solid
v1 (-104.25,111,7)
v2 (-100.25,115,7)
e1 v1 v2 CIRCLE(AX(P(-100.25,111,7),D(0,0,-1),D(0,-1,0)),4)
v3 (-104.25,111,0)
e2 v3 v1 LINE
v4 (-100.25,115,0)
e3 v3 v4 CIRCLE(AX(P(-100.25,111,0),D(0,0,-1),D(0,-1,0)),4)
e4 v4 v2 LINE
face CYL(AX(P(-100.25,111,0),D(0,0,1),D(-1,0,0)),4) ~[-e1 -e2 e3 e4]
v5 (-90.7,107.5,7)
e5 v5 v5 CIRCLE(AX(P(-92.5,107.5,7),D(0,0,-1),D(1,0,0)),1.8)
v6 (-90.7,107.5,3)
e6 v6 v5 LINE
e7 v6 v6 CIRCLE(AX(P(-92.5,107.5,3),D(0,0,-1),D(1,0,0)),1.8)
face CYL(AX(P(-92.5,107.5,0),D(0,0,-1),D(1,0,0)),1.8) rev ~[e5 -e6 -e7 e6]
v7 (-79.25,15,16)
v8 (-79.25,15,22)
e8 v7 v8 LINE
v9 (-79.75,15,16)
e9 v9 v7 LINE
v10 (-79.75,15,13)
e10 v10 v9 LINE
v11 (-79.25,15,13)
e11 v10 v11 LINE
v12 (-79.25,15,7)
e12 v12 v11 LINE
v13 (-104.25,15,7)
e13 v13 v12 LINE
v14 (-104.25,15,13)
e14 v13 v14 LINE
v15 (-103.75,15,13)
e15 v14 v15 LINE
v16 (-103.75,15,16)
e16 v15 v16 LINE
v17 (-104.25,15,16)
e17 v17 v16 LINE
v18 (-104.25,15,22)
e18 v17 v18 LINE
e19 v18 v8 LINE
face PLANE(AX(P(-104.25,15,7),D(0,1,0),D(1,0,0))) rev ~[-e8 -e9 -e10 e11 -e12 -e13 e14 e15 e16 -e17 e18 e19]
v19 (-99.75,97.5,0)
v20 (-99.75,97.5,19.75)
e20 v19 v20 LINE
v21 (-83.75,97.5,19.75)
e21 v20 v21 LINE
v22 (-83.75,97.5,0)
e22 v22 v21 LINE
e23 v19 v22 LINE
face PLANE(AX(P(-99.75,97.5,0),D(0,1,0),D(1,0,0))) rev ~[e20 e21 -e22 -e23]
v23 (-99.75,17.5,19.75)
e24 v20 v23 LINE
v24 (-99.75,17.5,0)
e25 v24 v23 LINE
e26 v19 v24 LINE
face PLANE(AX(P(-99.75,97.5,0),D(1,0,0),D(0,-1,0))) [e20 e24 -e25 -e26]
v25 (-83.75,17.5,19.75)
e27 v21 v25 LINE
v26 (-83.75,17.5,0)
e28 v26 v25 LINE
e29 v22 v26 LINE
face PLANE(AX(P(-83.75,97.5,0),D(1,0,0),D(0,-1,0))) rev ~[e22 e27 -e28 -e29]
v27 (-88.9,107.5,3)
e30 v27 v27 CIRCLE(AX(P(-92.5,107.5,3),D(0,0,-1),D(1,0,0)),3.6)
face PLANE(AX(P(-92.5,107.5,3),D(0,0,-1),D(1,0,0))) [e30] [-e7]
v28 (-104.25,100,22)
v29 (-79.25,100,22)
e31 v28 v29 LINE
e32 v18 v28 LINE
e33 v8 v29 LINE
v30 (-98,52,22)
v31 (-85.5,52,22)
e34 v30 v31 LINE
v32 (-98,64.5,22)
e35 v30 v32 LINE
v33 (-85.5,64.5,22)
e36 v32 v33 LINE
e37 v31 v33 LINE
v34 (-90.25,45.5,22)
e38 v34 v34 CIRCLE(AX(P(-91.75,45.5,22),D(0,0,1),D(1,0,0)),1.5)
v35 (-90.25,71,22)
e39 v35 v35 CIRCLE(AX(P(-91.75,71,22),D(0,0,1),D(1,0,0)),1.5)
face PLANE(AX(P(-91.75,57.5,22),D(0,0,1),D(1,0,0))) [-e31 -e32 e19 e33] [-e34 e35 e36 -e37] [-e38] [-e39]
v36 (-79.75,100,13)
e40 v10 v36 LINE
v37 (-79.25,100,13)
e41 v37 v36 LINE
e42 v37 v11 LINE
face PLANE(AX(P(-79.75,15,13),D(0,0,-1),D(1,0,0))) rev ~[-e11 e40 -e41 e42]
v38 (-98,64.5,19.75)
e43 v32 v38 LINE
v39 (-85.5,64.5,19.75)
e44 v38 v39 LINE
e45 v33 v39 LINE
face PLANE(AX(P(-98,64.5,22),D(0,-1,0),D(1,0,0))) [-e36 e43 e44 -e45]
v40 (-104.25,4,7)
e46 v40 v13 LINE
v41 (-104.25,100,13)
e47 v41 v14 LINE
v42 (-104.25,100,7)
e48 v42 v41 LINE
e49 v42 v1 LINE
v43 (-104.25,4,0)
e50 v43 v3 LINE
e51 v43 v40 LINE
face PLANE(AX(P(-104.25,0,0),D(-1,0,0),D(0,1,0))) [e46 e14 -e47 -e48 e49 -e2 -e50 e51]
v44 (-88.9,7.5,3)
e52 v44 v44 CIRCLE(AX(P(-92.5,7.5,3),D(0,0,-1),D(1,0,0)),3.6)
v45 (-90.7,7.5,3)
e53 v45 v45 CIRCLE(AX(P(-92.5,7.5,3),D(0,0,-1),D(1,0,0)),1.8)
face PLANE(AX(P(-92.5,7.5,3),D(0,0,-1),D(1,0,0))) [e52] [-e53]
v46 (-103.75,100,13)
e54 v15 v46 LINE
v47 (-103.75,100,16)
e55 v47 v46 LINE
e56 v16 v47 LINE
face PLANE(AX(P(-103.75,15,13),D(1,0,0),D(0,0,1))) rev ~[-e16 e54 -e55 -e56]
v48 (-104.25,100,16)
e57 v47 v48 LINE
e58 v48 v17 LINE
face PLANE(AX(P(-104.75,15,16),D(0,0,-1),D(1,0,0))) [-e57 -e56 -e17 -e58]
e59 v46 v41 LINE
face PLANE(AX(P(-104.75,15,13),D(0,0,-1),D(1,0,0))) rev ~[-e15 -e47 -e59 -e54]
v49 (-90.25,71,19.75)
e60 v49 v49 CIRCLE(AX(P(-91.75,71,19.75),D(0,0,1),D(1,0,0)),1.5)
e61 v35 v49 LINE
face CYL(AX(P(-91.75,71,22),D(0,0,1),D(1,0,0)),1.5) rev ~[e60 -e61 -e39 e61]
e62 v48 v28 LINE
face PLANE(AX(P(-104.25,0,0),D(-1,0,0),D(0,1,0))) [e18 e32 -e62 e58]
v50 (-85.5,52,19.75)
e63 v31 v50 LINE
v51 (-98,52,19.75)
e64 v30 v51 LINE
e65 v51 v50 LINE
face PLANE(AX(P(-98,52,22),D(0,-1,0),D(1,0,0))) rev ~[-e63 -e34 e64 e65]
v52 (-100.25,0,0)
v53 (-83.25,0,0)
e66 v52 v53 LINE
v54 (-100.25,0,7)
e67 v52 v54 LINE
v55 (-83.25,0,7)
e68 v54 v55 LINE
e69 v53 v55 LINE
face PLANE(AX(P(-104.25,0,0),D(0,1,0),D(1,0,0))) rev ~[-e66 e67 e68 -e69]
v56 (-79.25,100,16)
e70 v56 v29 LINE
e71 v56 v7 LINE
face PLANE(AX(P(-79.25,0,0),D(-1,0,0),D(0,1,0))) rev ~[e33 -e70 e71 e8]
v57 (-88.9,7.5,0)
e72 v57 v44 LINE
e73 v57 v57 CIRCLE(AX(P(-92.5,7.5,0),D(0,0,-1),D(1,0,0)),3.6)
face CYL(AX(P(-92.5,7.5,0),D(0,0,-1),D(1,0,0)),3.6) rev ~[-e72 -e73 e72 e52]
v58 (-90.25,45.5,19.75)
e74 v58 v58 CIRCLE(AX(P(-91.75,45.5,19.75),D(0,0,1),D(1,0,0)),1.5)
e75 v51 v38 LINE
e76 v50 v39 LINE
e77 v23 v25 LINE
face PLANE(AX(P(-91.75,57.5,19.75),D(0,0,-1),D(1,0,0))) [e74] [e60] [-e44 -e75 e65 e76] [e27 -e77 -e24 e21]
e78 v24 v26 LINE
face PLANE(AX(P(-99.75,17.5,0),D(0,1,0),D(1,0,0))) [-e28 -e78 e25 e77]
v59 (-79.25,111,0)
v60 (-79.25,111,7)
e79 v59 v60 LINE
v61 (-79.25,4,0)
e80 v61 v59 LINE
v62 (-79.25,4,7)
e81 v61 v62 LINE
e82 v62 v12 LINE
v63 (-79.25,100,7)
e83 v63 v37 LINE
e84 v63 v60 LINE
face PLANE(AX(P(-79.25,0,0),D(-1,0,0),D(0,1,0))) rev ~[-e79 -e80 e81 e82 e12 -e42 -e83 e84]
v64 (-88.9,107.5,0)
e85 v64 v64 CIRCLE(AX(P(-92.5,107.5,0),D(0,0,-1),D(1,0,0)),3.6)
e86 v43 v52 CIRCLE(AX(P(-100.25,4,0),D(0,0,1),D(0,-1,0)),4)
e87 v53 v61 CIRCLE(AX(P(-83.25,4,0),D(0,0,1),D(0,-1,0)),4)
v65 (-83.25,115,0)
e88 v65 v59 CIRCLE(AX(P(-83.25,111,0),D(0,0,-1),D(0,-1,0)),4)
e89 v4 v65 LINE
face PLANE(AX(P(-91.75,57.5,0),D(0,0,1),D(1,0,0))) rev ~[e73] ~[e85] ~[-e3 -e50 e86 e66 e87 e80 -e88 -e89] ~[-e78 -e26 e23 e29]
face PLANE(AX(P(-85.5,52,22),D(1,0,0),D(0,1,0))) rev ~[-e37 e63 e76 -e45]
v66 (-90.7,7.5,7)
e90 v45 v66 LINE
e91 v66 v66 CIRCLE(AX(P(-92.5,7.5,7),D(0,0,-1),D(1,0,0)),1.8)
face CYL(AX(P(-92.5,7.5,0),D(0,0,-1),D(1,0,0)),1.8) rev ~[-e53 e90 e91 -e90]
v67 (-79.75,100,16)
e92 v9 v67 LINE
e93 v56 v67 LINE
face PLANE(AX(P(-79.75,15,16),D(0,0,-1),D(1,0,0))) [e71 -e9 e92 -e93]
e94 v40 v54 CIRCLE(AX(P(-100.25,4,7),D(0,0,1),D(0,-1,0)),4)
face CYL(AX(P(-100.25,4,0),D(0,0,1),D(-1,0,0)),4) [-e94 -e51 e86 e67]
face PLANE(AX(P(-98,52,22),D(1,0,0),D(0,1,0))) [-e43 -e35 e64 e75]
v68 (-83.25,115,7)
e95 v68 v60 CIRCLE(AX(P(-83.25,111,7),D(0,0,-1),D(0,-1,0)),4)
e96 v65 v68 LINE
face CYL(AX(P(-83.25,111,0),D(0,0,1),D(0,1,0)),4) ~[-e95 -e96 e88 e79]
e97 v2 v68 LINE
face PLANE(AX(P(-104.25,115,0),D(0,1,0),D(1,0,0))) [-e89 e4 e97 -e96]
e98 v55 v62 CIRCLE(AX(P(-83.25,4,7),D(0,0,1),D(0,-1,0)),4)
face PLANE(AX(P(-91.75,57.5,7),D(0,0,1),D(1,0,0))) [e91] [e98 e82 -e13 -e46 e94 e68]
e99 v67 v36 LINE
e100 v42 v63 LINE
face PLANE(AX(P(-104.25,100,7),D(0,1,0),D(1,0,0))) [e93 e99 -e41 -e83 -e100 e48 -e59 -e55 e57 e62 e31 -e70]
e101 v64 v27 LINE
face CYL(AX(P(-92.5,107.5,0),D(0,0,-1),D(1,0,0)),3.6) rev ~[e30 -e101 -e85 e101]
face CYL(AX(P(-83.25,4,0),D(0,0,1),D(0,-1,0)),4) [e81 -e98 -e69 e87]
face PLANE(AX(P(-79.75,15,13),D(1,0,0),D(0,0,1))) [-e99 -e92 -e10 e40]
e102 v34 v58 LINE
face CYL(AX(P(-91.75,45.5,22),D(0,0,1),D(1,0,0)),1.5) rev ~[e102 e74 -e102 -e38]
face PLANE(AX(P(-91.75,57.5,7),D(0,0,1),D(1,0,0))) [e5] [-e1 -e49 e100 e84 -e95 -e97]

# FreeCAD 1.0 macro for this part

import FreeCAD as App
import Part
import Sketcher
from FreeCAD import Vector
Q = App.Units.Quantity


def edges_at(feature, points):
    """Names of the edges that pass closest to the given points."""
    edges = feature.Shape.Edges
    near = lambda p: min(range(len(edges)), key=lambda i: edges[i].distToShape(Part.Vertex(*p))[0])
    return sorted({f"Edge{near(p) + 1}" for p in points})

doc = App.newDocument("Part")
params = doc.addObject("Spreadsheet::Sheet", "Params")
for row, (alias, value) in enumerate([
    ("sketch1_width", "25 mm"),
    ("sketch1_height", "115 mm"),
    ("pad1_length", "7 mm"),
    ("sketch2_width", "25 mm"),
    ("sketch2_height", "85 mm"),
    ("pad2_length", "15 mm"),
    ("sketch3_width", "12.5 mm"),
    ("sketch4_diameter", "3 mm"),
    ("sketch5_width", "16 mm"),
    ("sketch5_height", "80 mm"),
    ("pocket3_length", "19.75 mm"),
    ("sketch6_width", "1 mm"),
    ("sketch6_height", "3 mm"),
    ("sketch7_diameter", "3.6 mm"),
    ("sketch8_diameter", "7.2 mm"),
    ("pocket6_length", "3 mm"),
    ("fillet_radius", "4 mm"),
], start=1):
    params.set(f"A{row}", alias)
    params.set(f"B{row}", "=" + value)
    params.setAlias(f"B{row}", alias)

body = doc.addObject("PartDesign::Body", "Body")

sketch1 = body.newObject("Sketcher::SketchObject", "Sketch")
sketch1.AttachmentSupport = (doc.getObject("XY_Plane"), [""])
sketch1.MapMode = "FlatFace"
sketch1.addGeometry([
    Part.LineSegment(Vector(-104, 115, 0), Vector(-104, 0, 0)),
    Part.LineSegment(Vector(-104, 0, 0), Vector(-79, 0, 0)),
    Part.LineSegment(Vector(-79, 0, 0), Vector(-79, 115, 0)),
    Part.LineSegment(Vector(-79, 115, 0), Vector(-104, 115, 0)),
], False)
sketch1.addConstraint([
    Sketcher.Constraint("Coincident", 0, 2, 1, 1),
    Sketcher.Constraint("Coincident", 1, 2, 2, 1),
    Sketcher.Constraint("Coincident", 2, 2, 3, 1),
    Sketcher.Constraint("Coincident", 3, 2, 0, 1),
    Sketcher.Constraint("Vertical", 0),
    Sketcher.Constraint("Horizontal", 1),
    Sketcher.Constraint("Vertical", 2),
    Sketcher.Constraint("Horizontal", 3),
    Sketcher.Constraint("PointOnObject", 0, 2, -1),
    Sketcher.Constraint("DistanceX", 1, 1, 1, 2, Q("25 mm")),
    Sketcher.Constraint("DistanceY", 0, 2, 0, 1, Q("115 mm")),
    Sketcher.Constraint("DistanceX", 0, 2, -1, 1, Q("104.25 mm")),
])
sketch1.setExpression("Constraints[9]", "Params.sketch1_width")
sketch1.setExpression("Constraints[10]", "Params.sketch1_height")
pad1 = body.newObject("PartDesign::Pad", "Pad")
pad1.Profile = sketch1
pad1.setExpression("Length", "Params.pad1_length")

sketch2 = body.newObject("Sketcher::SketchObject", "Sketch001")
sketch2.AttachmentSupport = (doc.getObject("XY_Plane"), [""])
sketch2.MapMode = "FlatFace"
sketch2.AttachmentOffset = App.Placement(Vector(0, 0, 7), App.Rotation())
sketch2.addGeometry([
    Part.LineSegment(Vector(-104, 100, 0), Vector(-104, 15, 0)),
    Part.LineSegment(Vector(-104, 15, 0), Vector(-79, 15, 0)),
    Part.LineSegment(Vector(-79, 15, 0), Vector(-79, 100, 0)),
    Part.LineSegment(Vector(-79, 100, 0), Vector(-104, 100, 0)),
], False)
sketch2.addConstraint([
    Sketcher.Constraint("Coincident", 0, 2, 1, 1),
    Sketcher.Constraint("Coincident", 1, 2, 2, 1),
    Sketcher.Constraint("Coincident", 2, 2, 3, 1),
    Sketcher.Constraint("Coincident", 3, 2, 0, 1),
    Sketcher.Constraint("Vertical", 0),
    Sketcher.Constraint("Horizontal", 1),
    Sketcher.Constraint("Vertical", 2),
    Sketcher.Constraint("Horizontal", 3),
    Sketcher.Constraint("DistanceX", 1, 1, 1, 2, Q("25 mm")),
    Sketcher.Constraint("DistanceY", 0, 2, 0, 1, Q("85 mm")),
    Sketcher.Constraint("DistanceY", -1, 1, 0, 2, Q("15 mm")),
    Sketcher.Constraint("DistanceX", 0, 2, -1, 1, Q("104.25 mm")),
])
sketch2.setExpression("Constraints[8]", "Params.sketch2_width")
sketch2.setExpression("Constraints[9]", "Params.sketch2_height")
pad2 = body.newObject("PartDesign::Pad", "Pad001")
pad2.Profile = sketch2
pad2.setExpression("Length", "Params.pad2_length")

sketch3 = body.newObject("Sketcher::SketchObject", "Sketch002")
sketch3.AttachmentSupport = (doc.getObject("XY_Plane"), [""])
sketch3.MapMode = "FlatFace"
sketch3.AttachmentOffset = App.Placement(Vector(0, 0, 22), App.Rotation())
sketch3.addGeometry([
    Part.LineSegment(Vector(-98, 64, 0), Vector(-98, 52, 0)),
    Part.LineSegment(Vector(-98, 52, 0), Vector(-86, 52, 0)),
    Part.LineSegment(Vector(-86, 52, 0), Vector(-86, 64, 0)),
    Part.LineSegment(Vector(-86, 64, 0), Vector(-98, 64, 0)),
], False)
sketch3.addConstraint([
    Sketcher.Constraint("Coincident", 0, 2, 1, 1),
    Sketcher.Constraint("Coincident", 1, 2, 2, 1),
    Sketcher.Constraint("Coincident", 2, 2, 3, 1),
    Sketcher.Constraint("Coincident", 3, 2, 0, 1),
    Sketcher.Constraint("Vertical", 0),
    Sketcher.Constraint("Horizontal", 1),
    Sketcher.Constraint("Vertical", 2),
    Sketcher.Constraint("Horizontal", 3),
    Sketcher.Constraint("Equal", 3, 0),
    Sketcher.Constraint("DistanceX", 1, 1, 1, 2, Q("12.5 mm")),
    Sketcher.Constraint("DistanceX", 0, 2, -1, 1, Q("98 mm")),
    Sketcher.Constraint("DistanceY", -1, 1, 0, 2, Q("52 mm")),
])
sketch3.setExpression("Constraints[9]", "Params.sketch3_width")
pocket1 = body.newObject("PartDesign::Pocket", "Pocket")
pocket1.Profile = sketch3
pocket1.Type = "ThroughAll"

sketch4 = body.newObject("Sketcher::SketchObject", "Sketch003")
sketch4.AttachmentSupport = (doc.getObject("XY_Plane"), [""])
sketch4.MapMode = "FlatFace"
sketch4.AttachmentOffset = App.Placement(Vector(0, 0, 22), App.Rotation())
sketch4.addGeometry([
    Part.Circle(Vector(-91.8, 71, 0), Vector(0, 0, 1), 1.5),
    Part.Circle(Vector(-91.8, 45.5, 0), Vector(0, 0, 1), 1.5),
], False)
sketch4.addConstraint([
    Sketcher.Constraint("Equal", 0, 1),
    Sketcher.Constraint("Vertical", 0, 3, 1, 3),
    Sketcher.Constraint("Diameter", 0, Q("3 mm")),
    Sketcher.Constraint("DistanceY", -1, 1, 0, 3, Q("71 mm")),
    Sketcher.Constraint("DistanceY", -1, 1, 1, 3, Q("45.5 mm")),
    Sketcher.Constraint("DistanceX", 0, 3, -1, 1, Q("91.75 mm")),
])
sketch4.setExpression("Constraints[2]", "Params.sketch4_diameter")
pocket2 = body.newObject("PartDesign::Pocket", "Pocket001")
pocket2.Profile = sketch4
pocket2.Type = "ThroughAll"

sketch5 = body.newObject("Sketcher::SketchObject", "Sketch004")
sketch5.AttachmentSupport = (doc.getObject("XY_Plane"), [""])
sketch5.MapMode = "FlatFace"
sketch5.addGeometry([
    Part.LineSegment(Vector(-100, 18, 0), Vector(-100, 98, 0)),
    Part.LineSegment(Vector(-100, 98, 0), Vector(-84, 98, 0)),
    Part.LineSegment(Vector(-84, 98, 0), Vector(-84, 18, 0)),
    Part.LineSegment(Vector(-84, 18, 0), Vector(-100, 18, 0)),
], False)
sketch5.addConstraint([
    Sketcher.Constraint("Coincident", 0, 2, 1, 1),
    Sketcher.Constraint("Coincident", 1, 2, 2, 1),
    Sketcher.Constraint("Coincident", 2, 2, 3, 1),
    Sketcher.Constraint("Coincident", 3, 2, 0, 1),
    Sketcher.Constraint("Vertical", 0),
    Sketcher.Constraint("Horizontal", 1),
    Sketcher.Constraint("Vertical", 2),
    Sketcher.Constraint("Horizontal", 3),
    Sketcher.Constraint("DistanceX", 1, 1, 1, 2, Q("16 mm")),
    Sketcher.Constraint("DistanceY", 0, 1, 0, 2, Q("80 mm")),
    Sketcher.Constraint("DistanceY", -1, 1, 0, 2, Q("97.5 mm")),
    Sketcher.Constraint("DistanceX", 0, 2, -1, 1, Q("99.75 mm")),
])
sketch5.setExpression("Constraints[8]", "Params.sketch5_width")
sketch5.setExpression("Constraints[9]", "Params.sketch5_height")
pocket3 = body.newObject("PartDesign::Pocket", "Pocket002")
pocket3.Profile = sketch5
pocket3.setExpression("Length", "Params.pocket3_length")
pocket3.Reversed = True

sketch6 = body.newObject("Sketcher::SketchObject", "Sketch005")
sketch6.AttachmentSupport = (doc.getObject("XZ_Plane"), [""])
sketch6.MapMode = "FlatFace"
sketch6.AttachmentOffset = App.Placement(Vector(0, 0, -15), App.Rotation())
sketch6.addGeometry([
    Part.LineSegment(Vector(-104.8, 16, 0), Vector(-104.8, 13, 0)),
    Part.LineSegment(Vector(-104.8, 13, 0), Vector(-103.8, 13, 0)),
    Part.LineSegment(Vector(-103.8, 13, 0), Vector(-103.8, 16, 0)),
    Part.LineSegment(Vector(-103.8, 16, 0), Vector(-104.8, 16, 0)),
    Part.LineSegment(Vector(-79.8, 16, 0), Vector(-79.8, 13, 0)),
    Part.LineSegment(Vector(-79.8, 13, 0), Vector(-78.8, 13, 0)),
    Part.LineSegment(Vector(-78.8, 13, 0), Vector(-78.8, 16, 0)),
    Part.LineSegment(Vector(-78.8, 16, 0), Vector(-79.8, 16, 0)),
], False)
sketch6.addConstraint([
    Sketcher.Constraint("Coincident", 0, 2, 1, 1),
    Sketcher.Constraint("Coincident", 1, 2, 2, 1),
    Sketcher.Constraint("Coincident", 2, 2, 3, 1),
    Sketcher.Constraint("Coincident", 3, 2, 0, 1),
    Sketcher.Constraint("Coincident", 4, 2, 5, 1),
    Sketcher.Constraint("Coincident", 5, 2, 6, 1),
    Sketcher.Constraint("Coincident", 6, 2, 7, 1),
    Sketcher.Constraint("Coincident", 7, 2, 4, 1),
    Sketcher.Constraint("Vertical", 0),
    Sketcher.Constraint("Horizontal", 1),
    Sketcher.Constraint("Vertical", 2),
    Sketcher.Constraint("Horizontal", 3),
    Sketcher.Constraint("Vertical", 4),
    Sketcher.Constraint("Horizontal", 5),
    Sketcher.Constraint("Vertical", 6),
    Sketcher.Constraint("Horizontal", 7),
    Sketcher.Constraint("Horizontal", 1, 2, 4, 2),
    Sketcher.Constraint("Horizontal", 3, 2, 6, 2),
    Sketcher.Constraint("Equal", 3, 5),
    Sketcher.Constraint("DistanceX", 1, 1, 1, 2, Q("1 mm")),
    Sketcher.Constraint("DistanceY", 0, 2, 0, 1, Q("3 mm")),
    Sketcher.Constraint("DistanceY", -1, 1, 0, 2, Q("13 mm")),
    Sketcher.Constraint("DistanceX", 1, 2, 4, 2, Q("24 mm")),
    Sketcher.Constraint("DistanceX", 0, 2, -1, 1, Q("104.75 mm")),
])
sketch6.setExpression("Constraints[19]", "Params.sketch6_width")
sketch6.setExpression("Constraints[20]", "Params.sketch6_height")
pocket4 = body.newObject("PartDesign::Pocket", "Pocket003")
pocket4.Profile = sketch6
pocket4.Type = "ThroughAll"

sketch7 = body.newObject("Sketcher::SketchObject", "Sketch006")
sketch7.AttachmentSupport = (doc.getObject("XY_Plane"), [""])
sketch7.MapMode = "FlatFace"
sketch7.addGeometry([
    Part.Circle(Vector(-92.5, 107.5, 0), Vector(0, 0, 1), 1.8),
    Part.Circle(Vector(-92.5, 7.5, 0), Vector(0, 0, 1), 1.8),
], False)
sketch7.addConstraint([
    Sketcher.Constraint("Equal", 0, 1),
    Sketcher.Constraint("Vertical", 0, 3, 1, 3),
    Sketcher.Constraint("Diameter", 0, Q("3.6 mm")),
    Sketcher.Constraint("DistanceY", 1, 3, 0, 3, Q("100 mm")),
    Sketcher.Constraint("DistanceX", 0, 3, -1, 1, Q("92.5 mm")),
    Sketcher.Constraint("DistanceY", -1, 1, 0, 3, Q("107.5 mm")),
])
sketch7.setExpression("Constraints[2]", "Params.sketch7_diameter")
pocket5 = body.newObject("PartDesign::Pocket", "Pocket004")
pocket5.Profile = sketch7
pocket5.Type = "ThroughAll"
pocket5.Reversed = True

sketch8 = body.newObject("Sketcher::SketchObject", "Sketch007")
sketch8.AttachmentSupport = (doc.getObject("XY_Plane"), [""])
sketch8.MapMode = "FlatFace"
sketch8.addGeometry([
    Part.Circle(Vector(-92.5, 7.5, 0), Vector(0, 0, 1), 3.6),
    Part.Circle(Vector(-92.5, 107.5, 0), Vector(0, 0, 1), 3.6),
], False)
sketch8.addConstraint([
    Sketcher.Constraint("Equal", 0, 1),
    Sketcher.Constraint("Vertical", 0, 3, 1, 3),
    Sketcher.Constraint("Diameter", 0, Q("7.2 mm")),
    Sketcher.Constraint("DistanceY", 0, 3, 1, 3, Q("100 mm")),
    Sketcher.Constraint("DistanceX", 0, 3, -1, 1, Q("92.5 mm")),
    Sketcher.Constraint("DistanceY", -1, 1, 0, 3, Q("7.5 mm")),
])
sketch8.setExpression("Constraints[2]", "Params.sketch8_diameter")
pocket6 = body.newObject("PartDesign::Pocket", "Pocket005")
pocket6.Profile = sketch8
pocket6.setExpression("Length", "Params.pocket6_length")
pocket6.Reversed = True
doc.recompute()

fillet = body.newObject("PartDesign::Fillet", "Fillet")
fillet.Base = (pocket6, edges_at(pocket6, [
    (-104.25, 115, 3.5),
    (-79.25, 115, 3.5),
    (-79.25, 0, 3.5),
    (-104.25, 0, 3.5),
]))
fillet.setExpression("Radius", "Params.fillet_radius")

doc.recompute()
